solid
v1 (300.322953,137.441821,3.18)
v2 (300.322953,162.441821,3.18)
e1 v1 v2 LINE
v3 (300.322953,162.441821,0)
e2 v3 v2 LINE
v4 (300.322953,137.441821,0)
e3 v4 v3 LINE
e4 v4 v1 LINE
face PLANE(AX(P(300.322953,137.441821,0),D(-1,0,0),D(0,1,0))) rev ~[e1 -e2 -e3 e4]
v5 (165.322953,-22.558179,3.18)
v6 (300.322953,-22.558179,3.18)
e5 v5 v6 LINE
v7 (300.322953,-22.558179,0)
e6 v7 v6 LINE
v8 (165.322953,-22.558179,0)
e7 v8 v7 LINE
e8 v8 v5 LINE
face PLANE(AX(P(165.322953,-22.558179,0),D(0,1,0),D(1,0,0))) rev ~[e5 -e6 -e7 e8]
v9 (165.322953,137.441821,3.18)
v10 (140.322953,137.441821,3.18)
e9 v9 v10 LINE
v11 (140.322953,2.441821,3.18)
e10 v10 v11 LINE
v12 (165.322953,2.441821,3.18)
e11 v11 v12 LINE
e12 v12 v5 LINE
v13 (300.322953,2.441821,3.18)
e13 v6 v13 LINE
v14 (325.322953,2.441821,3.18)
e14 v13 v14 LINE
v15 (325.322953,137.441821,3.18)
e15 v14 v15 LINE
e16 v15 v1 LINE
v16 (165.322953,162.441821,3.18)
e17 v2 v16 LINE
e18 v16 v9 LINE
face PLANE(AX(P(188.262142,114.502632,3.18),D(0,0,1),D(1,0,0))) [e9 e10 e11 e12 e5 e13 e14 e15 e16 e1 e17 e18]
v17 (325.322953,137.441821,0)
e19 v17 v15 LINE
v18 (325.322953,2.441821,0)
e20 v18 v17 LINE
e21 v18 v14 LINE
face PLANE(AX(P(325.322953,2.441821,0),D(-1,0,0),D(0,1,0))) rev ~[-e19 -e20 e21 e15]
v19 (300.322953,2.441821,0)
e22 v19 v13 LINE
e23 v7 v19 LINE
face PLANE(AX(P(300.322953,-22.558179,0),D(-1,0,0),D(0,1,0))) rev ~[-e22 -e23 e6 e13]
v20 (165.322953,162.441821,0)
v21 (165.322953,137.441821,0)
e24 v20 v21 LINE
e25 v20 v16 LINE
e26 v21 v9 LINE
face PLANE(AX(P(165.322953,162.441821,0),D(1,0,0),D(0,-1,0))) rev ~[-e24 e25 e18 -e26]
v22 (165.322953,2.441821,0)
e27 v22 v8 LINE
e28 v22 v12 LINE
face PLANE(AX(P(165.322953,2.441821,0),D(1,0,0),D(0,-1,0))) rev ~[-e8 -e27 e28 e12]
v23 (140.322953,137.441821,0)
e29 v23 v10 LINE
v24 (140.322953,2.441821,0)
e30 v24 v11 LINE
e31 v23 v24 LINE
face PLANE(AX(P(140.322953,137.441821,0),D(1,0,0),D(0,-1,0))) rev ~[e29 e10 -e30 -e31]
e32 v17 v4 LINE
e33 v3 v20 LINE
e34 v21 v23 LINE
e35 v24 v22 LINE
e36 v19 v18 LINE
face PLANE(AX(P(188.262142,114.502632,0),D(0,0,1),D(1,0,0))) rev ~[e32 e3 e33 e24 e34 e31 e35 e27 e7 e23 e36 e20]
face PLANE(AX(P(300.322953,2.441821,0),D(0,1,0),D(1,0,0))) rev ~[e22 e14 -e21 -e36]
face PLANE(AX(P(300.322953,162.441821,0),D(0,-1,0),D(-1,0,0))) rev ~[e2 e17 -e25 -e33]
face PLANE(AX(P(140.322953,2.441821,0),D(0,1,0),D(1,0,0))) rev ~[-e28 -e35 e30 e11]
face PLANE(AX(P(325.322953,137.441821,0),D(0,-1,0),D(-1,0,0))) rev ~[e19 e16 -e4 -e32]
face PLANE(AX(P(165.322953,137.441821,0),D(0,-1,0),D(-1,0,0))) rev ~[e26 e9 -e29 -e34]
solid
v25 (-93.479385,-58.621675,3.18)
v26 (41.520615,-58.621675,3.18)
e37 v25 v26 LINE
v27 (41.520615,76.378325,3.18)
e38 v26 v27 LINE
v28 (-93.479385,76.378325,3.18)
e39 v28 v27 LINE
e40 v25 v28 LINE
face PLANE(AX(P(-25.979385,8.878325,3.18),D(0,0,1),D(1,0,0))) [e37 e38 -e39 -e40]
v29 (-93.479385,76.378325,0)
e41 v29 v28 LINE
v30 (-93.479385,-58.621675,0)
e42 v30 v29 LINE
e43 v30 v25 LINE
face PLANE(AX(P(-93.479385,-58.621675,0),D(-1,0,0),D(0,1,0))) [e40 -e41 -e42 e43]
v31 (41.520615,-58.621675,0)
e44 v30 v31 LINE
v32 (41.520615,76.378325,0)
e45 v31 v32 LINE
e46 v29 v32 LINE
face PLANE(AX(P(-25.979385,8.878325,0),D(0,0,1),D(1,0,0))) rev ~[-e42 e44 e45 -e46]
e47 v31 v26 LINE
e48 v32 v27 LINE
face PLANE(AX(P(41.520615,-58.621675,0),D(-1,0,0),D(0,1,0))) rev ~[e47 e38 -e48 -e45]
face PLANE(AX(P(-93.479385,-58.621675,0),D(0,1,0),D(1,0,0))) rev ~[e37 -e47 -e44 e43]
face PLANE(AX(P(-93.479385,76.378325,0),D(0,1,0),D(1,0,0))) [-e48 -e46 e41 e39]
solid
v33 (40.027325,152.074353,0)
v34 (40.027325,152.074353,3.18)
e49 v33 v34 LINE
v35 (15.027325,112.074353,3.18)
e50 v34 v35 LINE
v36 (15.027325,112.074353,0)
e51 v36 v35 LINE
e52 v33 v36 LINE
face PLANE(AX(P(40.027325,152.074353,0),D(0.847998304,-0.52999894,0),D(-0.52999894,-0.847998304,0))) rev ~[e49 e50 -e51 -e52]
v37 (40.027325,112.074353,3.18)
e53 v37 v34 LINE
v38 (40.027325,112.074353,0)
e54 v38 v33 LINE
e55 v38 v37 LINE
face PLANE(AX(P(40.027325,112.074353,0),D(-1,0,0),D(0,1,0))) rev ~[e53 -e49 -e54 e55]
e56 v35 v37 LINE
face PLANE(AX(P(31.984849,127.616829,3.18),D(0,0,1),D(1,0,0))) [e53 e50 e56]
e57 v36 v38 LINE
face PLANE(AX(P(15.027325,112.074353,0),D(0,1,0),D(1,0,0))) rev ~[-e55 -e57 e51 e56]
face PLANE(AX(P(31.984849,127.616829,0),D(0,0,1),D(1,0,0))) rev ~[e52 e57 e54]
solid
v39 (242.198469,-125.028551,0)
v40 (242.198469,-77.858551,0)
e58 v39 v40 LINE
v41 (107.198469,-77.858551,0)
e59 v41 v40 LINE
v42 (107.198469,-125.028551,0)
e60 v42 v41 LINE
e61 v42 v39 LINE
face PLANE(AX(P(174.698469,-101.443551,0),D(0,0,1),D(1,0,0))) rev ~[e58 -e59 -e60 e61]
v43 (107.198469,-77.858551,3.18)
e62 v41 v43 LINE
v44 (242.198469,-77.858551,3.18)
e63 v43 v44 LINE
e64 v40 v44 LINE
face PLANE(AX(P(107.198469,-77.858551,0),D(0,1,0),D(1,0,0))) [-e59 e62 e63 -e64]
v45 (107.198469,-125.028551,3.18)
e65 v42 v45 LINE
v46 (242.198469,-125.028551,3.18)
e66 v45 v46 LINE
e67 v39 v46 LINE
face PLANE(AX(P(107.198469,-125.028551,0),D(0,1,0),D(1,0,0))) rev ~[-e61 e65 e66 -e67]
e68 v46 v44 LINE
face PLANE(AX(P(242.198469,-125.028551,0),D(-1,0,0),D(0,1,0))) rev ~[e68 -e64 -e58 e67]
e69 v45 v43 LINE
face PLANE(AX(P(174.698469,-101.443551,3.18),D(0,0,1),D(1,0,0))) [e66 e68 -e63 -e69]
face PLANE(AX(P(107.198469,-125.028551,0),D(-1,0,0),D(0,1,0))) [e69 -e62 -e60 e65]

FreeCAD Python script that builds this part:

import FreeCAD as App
import Part
import Sketcher
from FreeCAD import Vector

doc = App.newDocument("Part")
body = doc.addObject("PartDesign::Body", "Body")
body.AllowCompound = True

sketch1 = body.newObject("Sketcher::SketchObject", "Sketch")
sketch1.AttachmentSupport = (doc.getObject("XY_Plane"), [""])
sketch1.MapMode = "FlatFace"
sketch1.addGeometry(Part.LineSegment(Vector(-93.479385, 76.378325, 0), Vector(-93.479385, -58.621675, 0)), False)
sketch1.addGeometry(Part.LineSegment(Vector(-93.479385, -58.621675, 0), Vector(41.520615, -58.621675, 0)), False)
sketch1.addGeometry(Part.LineSegment(Vector(41.520615, -58.621675, 0), Vector(41.520615, 76.378325, 0)), False)
sketch1.addGeometry(Part.LineSegment(Vector(41.520615, 76.378325, 0), Vector(-93.479385, 76.378325, 0)), False)
sketch1.addGeometry(Part.LineSegment(Vector(40.027325, 112.074353, 0), Vector(40.027325, 152.074353, 0)), False)
sketch1.addGeometry(Part.LineSegment(Vector(40.027325, 152.074353, 0), Vector(15.027325, 112.074353, 0)), False)
sketch1.addGeometry(Part.LineSegment(Vector(15.027325, 112.074353, 0), Vector(40.027325, 112.074353, 0)), False)
sketch1.addGeometry(Part.LineSegment(Vector(107.198469, -77.858551, 0), Vector(107.198469, -125.028551, 0)), False)
sketch1.addGeometry(Part.LineSegment(Vector(107.198469, -125.028551, 0), Vector(242.198469, -125.028551, 0)), False)
sketch1.addGeometry(Part.LineSegment(Vector(242.198469, -125.028551, 0), Vector(242.198469, -77.858551, 0)), False)
sketch1.addGeometry(Part.LineSegment(Vector(242.198469, -77.858551, 0), Vector(107.198469, -77.858551, 0)), False)
sketch1.addGeometry(Part.LineSegment(Vector(165.322953, 162.441821, 0), Vector(165.322953, 137.441821, 0)), False)
sketch1.addGeometry(Part.LineSegment(Vector(165.322953, 137.441821, 0), Vector(140.322953, 137.441821, 0)), False)
sketch1.addGeometry(Part.LineSegment(Vector(140.322953, 137.441821, 0), Vector(140.322953, 2.441821, 0)), False)
sketch1.addGeometry(Part.LineSegment(Vector(140.322953, 2.441821, 0), Vector(165.322953, 2.441821, 0)), False)
sketch1.addGeometry(Part.LineSegment(Vector(165.322953, 2.441821, 0), Vector(165.322953, -22.558179, 0)), False)
sketch1.addGeometry(Part.LineSegment(Vector(165.322953, -22.558179, 0), Vector(300.322953, -22.558179, 0)), False)
sketch1.addGeometry(Part.LineSegment(Vector(300.322953, -22.558179, 0), Vector(300.322953, 2.441821, 0)), False)
sketch1.addGeometry(Part.LineSegment(Vector(300.322953, 2.441821, 0), Vector(325.322953, 2.441821, 0)), False)
sketch1.addGeometry(Part.LineSegment(Vector(325.322953, 2.441821, 0), Vector(325.322953, 137.441821, 0)), False)
sketch1.addGeometry(Part.LineSegment(Vector(325.322953, 137.441821, 0), Vector(300.322953, 137.441821, 0)), False)
sketch1.addGeometry(Part.LineSegment(Vector(300.322953, 137.441821, 0), Vector(300.322953, 162.441821, 0)), False)
sketch1.addGeometry(Part.LineSegment(Vector(300.322953, 162.441821, 0), Vector(165.322953, 162.441821, 0)), False)
sketch1.addConstraint(Sketcher.Constraint("Coincident", 0, 2, 1, 1))
sketch1.addConstraint(Sketcher.Constraint("Coincident", 1, 2, 2, 1))
sketch1.addConstraint(Sketcher.Constraint("Coincident", 2, 2, 3, 1))
sketch1.addConstraint(Sketcher.Constraint("Coincident", 3, 2, 0, 1))
sketch1.addConstraint(Sketcher.Constraint("Coincident", 4, 2, 5, 1))
sketch1.addConstraint(Sketcher.Constraint("Coincident", 5, 2, 6, 1))
sketch1.addConstraint(Sketcher.Constraint("Coincident", 6, 2, 4, 1))
sketch1.addConstraint(Sketcher.Constraint("Coincident", 7, 2, 8, 1))
sketch1.addConstraint(Sketcher.Constraint("Coincident", 8, 2, 9, 1))
sketch1.addConstraint(Sketcher.Constraint("Coincident", 9, 2, 10, 1))
sketch1.addConstraint(Sketcher.Constraint("Coincident", 10, 2, 7, 1))
sketch1.addConstraint(Sketcher.Constraint("Coincident", 11, 2, 12, 1))
sketch1.addConstraint(Sketcher.Constraint("Coincident", 12, 2, 13, 1))
sketch1.addConstraint(Sketcher.Constraint("Coincident", 13, 2, 14, 1))
sketch1.addConstraint(Sketcher.Constraint("Coincident", 14, 2, 15, 1))
sketch1.addConstraint(Sketcher.Constraint("Coincident", 15, 2, 16, 1))
sketch1.addConstraint(Sketcher.Constraint("Coincident", 16, 2, 17, 1))
sketch1.addConstraint(Sketcher.Constraint("Coincident", 17, 2, 18, 1))
sketch1.addConstraint(Sketcher.Constraint("Coincident", 18, 2, 19, 1))
sketch1.addConstraint(Sketcher.Constraint("Coincident", 19, 2, 20, 1))
sketch1.addConstraint(Sketcher.Constraint("Coincident", 20, 2, 21, 1))
sketch1.addConstraint(Sketcher.Constraint("Coincident", 21, 2, 22, 1))
sketch1.addConstraint(Sketcher.Constraint("Coincident", 22, 2, 11, 1))
sketch1.addConstraint(Sketcher.Constraint("Vertical", 0))
sketch1.addConstraint(Sketcher.Constraint("Horizontal", 1))
sketch1.addConstraint(Sketcher.Constraint("Vertical", 2))
sketch1.addConstraint(Sketcher.Constraint("Horizontal", 3))
sketch1.addConstraint(Sketcher.Constraint("Vertical", 4))
sketch1.addConstraint(Sketcher.Constraint("Horizontal", 6))
sketch1.addConstraint(Sketcher.Constraint("Vertical", 7))
sketch1.addConstraint(Sketcher.Constraint("Horizontal", 8))
sketch1.addConstraint(Sketcher.Constraint("Vertical", 9))
sketch1.addConstraint(Sketcher.Constraint("Horizontal", 10))
sketch1.addConstraint(Sketcher.Constraint("Vertical", 11))
sketch1.addConstraint(Sketcher.Constraint("Horizontal", 12))
sketch1.addConstraint(Sketcher.Constraint("Vertical", 13))
sketch1.addConstraint(Sketcher.Constraint("Horizontal", 14))
sketch1.addConstraint(Sketcher.Constraint("Vertical", 15))
sketch1.addConstraint(Sketcher.Constraint("Horizontal", 16))
sketch1.addConstraint(Sketcher.Constraint("Vertical", 17))
sketch1.addConstraint(Sketcher.Constraint("Horizontal", 18))
sketch1.addConstraint(Sketcher.Constraint("Vertical", 19))
sketch1.addConstraint(Sketcher.Constraint("Horizontal", 20))
sketch1.addConstraint(Sketcher.Constraint("Vertical", 21))
sketch1.addConstraint(Sketcher.Constraint("Horizontal", 22))
sketch1.addConstraint(Sketcher.Constraint("Horizontal", 14, 2, 17, 2))
sketch1.addConstraint(Sketcher.Constraint("Horizontal", 12, 2, 19, 2))
sketch1.addConstraint(Sketcher.Constraint("Vertical", 11, 2, 14, 2))
sketch1.addConstraint(Sketcher.Constraint("Vertical", 17, 2, 20, 2))
sketch1.addConstraint(Sketcher.Constraint("Equal", 3, 8))
sketch1.addConstraint(Sketcher.Constraint("Equal", 6, 12))
sketch1.addConstraint(Sketcher.Constraint("Equal", 10, 16))
sketch1.addConstraint(Sketcher.Constraint("Equal", 14, 18))
sketch1.addConstraint(Sketcher.Constraint("Equal", 22, 0))
sketch1.addConstraint(Sketcher.Constraint("Equal", 20, 11))
sketch1.addConstraint(Sketcher.Constraint("Equal", 2, 13))
sketch1.addConstraint(Sketcher.Constraint("Equal", 11, 15))
sketch1.addConstraint(Sketcher.Constraint("DistanceX", 1, 1, 1, 2, 135.0))
sketch1.addConstraint(Sketcher.Constraint("DistanceX", 6, 1, 6, 2, 25.0))
sketch1.addConstraint(Sketcher.Constraint("DistanceY", 4, 1, 4, 2, 40.0))
sketch1.addConstraint(Sketcher.Constraint("DistanceY", 7, 2, 7, 1, 47.17))
sketch1.addConstraint(Sketcher.Constraint("DistanceX", -1, 1, 7, 2, 107.198469))
sketch1.addConstraint(Sketcher.Constraint("DistanceY", 7, 2, -1, 1, 125.028551))
sketch1.addConstraint(Sketcher.Constraint("DistanceY", -1, 1, 11, 2, 137.441821))
sketch1.addConstraint(Sketcher.Constraint("DistanceX", 4, 2, 2, 2, 1.49329))
sketch1.addConstraint(Sketcher.Constraint("DistanceY", 2, 2, 4, 2, 75.696028))
sketch1.addConstraint(Sketcher.Constraint("DistanceX", 4, 2, 11, 2, 125.295628))
sketch1.addConstraint(Sketcher.Constraint("DistanceY", 11, 2, 4, 2, 14.632532))
sketch1.addConstraint(Sketcher.Constraint("DistanceX", 0, 2, -1, 1, 93.479385))
pad1 = body.newObject("PartDesign::Pad", "Pad")
pad1.Profile = sketch1
pad1.Length = 3.18

doc.recompute()
